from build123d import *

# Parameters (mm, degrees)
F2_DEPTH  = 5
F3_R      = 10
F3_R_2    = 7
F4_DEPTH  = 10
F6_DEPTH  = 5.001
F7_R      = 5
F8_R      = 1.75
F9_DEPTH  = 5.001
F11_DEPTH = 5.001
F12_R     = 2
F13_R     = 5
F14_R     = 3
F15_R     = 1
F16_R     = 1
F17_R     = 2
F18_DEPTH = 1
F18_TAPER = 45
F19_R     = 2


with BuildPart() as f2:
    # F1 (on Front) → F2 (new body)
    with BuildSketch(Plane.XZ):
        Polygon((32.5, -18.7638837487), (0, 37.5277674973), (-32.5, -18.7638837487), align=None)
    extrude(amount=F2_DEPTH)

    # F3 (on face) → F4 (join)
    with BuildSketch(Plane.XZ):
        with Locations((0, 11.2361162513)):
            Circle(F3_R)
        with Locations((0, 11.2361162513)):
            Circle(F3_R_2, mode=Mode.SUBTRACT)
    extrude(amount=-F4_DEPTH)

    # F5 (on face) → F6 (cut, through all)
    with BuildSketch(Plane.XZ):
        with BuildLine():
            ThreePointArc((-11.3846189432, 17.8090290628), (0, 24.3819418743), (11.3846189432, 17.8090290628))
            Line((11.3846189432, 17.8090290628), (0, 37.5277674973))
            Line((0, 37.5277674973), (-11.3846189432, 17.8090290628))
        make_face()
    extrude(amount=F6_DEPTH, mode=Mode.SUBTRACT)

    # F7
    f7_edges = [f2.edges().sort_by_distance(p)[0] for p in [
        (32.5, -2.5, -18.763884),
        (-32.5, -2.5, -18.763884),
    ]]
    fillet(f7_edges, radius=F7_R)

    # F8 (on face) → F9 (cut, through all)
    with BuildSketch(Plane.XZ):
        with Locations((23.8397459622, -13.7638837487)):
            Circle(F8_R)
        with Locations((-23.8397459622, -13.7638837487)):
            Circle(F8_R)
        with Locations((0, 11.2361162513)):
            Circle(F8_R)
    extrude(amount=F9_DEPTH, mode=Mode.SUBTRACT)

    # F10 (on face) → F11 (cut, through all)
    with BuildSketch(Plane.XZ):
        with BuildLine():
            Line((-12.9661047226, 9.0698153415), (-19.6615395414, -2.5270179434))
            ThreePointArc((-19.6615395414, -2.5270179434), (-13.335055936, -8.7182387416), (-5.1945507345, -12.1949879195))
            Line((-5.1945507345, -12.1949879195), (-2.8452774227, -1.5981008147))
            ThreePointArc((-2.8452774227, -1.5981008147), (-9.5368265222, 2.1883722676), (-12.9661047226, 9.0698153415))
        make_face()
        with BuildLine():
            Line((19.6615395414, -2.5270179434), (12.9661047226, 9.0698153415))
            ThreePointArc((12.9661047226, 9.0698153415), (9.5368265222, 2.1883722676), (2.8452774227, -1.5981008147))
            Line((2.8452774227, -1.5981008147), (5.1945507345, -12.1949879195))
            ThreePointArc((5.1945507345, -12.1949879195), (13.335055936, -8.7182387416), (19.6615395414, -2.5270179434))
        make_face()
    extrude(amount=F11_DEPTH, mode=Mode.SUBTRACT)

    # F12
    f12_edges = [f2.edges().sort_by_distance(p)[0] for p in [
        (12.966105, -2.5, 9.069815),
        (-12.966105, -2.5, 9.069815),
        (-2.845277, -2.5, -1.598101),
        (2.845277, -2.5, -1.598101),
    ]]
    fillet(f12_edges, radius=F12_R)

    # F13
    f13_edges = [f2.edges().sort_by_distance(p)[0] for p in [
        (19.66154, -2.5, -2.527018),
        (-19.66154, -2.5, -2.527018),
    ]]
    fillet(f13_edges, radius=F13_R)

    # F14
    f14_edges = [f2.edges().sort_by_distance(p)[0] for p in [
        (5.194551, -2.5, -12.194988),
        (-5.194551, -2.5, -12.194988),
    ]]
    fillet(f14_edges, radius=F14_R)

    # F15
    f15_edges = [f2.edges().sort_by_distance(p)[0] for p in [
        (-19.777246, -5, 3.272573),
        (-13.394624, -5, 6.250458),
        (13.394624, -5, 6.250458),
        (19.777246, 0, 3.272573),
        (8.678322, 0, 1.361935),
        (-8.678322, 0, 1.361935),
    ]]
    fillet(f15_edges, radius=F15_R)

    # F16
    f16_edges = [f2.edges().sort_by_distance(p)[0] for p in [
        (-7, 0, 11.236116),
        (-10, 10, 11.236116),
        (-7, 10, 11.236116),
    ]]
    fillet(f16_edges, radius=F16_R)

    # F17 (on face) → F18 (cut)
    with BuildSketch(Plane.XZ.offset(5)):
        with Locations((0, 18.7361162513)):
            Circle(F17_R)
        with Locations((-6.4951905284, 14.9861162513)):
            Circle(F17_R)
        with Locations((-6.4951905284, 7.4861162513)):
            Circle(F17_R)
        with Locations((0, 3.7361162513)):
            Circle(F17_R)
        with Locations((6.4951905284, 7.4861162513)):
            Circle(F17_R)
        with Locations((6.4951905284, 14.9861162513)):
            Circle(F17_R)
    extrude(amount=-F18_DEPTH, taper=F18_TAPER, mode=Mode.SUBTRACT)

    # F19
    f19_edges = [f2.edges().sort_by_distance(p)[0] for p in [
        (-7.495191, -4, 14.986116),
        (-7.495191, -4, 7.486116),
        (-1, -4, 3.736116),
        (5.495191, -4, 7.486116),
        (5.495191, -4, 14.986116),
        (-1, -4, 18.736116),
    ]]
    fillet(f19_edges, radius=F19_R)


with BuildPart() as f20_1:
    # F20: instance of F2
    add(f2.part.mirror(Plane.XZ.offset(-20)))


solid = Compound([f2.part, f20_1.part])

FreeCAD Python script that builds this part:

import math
import FreeCAD as App
import Part
import Sketcher
from FreeCAD import Vector
Q = App.Units.Quantity


def edges_at(feature, points):
    """Names of the edges that pass closest to the given points."""
    edges = feature.Shape.Edges
    near = lambda p: min(range(len(edges)), key=lambda i: edges[i].distToShape(Part.Vertex(*p))[0])
    return sorted({f"Edge{near(p) + 1}" for p in points})

doc = App.newDocument("Part")
body = doc.addObject("PartDesign::Body", "Body")

# Sketch on XZ plane
sketch1 = body.newObject("Sketcher::SketchObject", "Sketch")
sketch1.AttachmentSupport = (doc.getObject("XZ_Plane"), [""])
sketch1.MapMode = "FlatFace"
sketch1.addGeometry(Part.LineSegment(Vector(32.5, -18.763884, 0), Vector(0, 37.527767, 0)), False)
sketch1.addGeometry(Part.LineSegment(Vector(0, 37.527767, 0), Vector(-32.5, -18.763884, 0)), False)
sketch1.addGeometry(Part.LineSegment(Vector(-32.5, -18.763884, 0), Vector(32.5, -18.763884, 0)), False)
sketch1.addConstraint(Sketcher.Constraint("Coincident", 0, 2, 1, 1))
sketch1.addConstraint(Sketcher.Constraint("Coincident", 1, 2, 2, 1))
sketch1.addConstraint(Sketcher.Constraint("Coincident", 2, 2, 0, 1))
sketch1.addConstraint(Sketcher.Constraint("Horizontal", 2))
sketch1.addConstraint(Sketcher.Constraint("PointOnObject", 0, 2, -2))
sketch1.addConstraint(Sketcher.Constraint("Equal", 0, 1))
sketch1.addConstraint(Sketcher.Constraint("DistanceX", 2, 1, 2, 2, Q("65 mm")))
sketch1.addConstraint(Sketcher.Constraint("Angle", 0, Q("120 deg")))
sketch1.addConstraint(Sketcher.Constraint("DistanceY", -1, 1, 0, 2, Q("37.527767 mm")))
pad1 = body.newObject("PartDesign::Pad", "Pad")
pad1.Profile = sketch1
pad1.Length = 5

# Sketch on XZ plane
sketch2 = body.newObject("Sketcher::SketchObject", "Sketch001")
sketch2.AttachmentSupport = (doc.getObject("XZ_Plane"), [""])
sketch2.MapMode = "FlatFace"
sketch2.addGeometry(Part.Circle(Vector(0, 11.236116, 0), Vector(0, 0, 1), 10), False)
sketch2.addGeometry(Part.Circle(Vector(0, 11.236116, 0), Vector(0, 0, 1), 7), False)
sketch2.addConstraint(Sketcher.Constraint("Coincident", 1, 3, 0, 3))
sketch2.addConstraint(Sketcher.Constraint("PointOnObject", 0, 3, -2))
sketch2.addConstraint(Sketcher.Constraint("Diameter", 0, Q("20 mm")))
sketch2.addConstraint(Sketcher.Constraint("Diameter", 1, Q("14 mm")))
sketch2.addConstraint(Sketcher.Constraint("DistanceY", -1, 1, 0, 3, Q("11.236116 mm")))
pad2 = body.newObject("PartDesign::Pad", "Pad001")
pad2.Profile = sketch2
pad2.Length = 10
pad2.Reversed = True

# Sketch on XZ plane
sketch3 = body.newObject("Sketcher::SketchObject", "Sketch002")
sketch3.AttachmentSupport = (doc.getObject("XZ_Plane"), [""])
sketch3.MapMode = "FlatFace"
sketch3.addGeometry(Part.ArcOfCircle(Part.Circle(Vector(0, 11.236116, 0), Vector(0, 0, 1), 13.145826), math.radians(30), math.radians(150)), False)
sketch3.addGeometry(Part.LineSegment(Vector(11.384619, 17.809029, 0), Vector(0, 37.527767, 0)), False)
sketch3.addGeometry(Part.LineSegment(Vector(0, 37.527767, 0), Vector(-11.384619, 17.809029, 0)), False)
sketch3.addConstraint(Sketcher.Constraint("Tangent", 0, 1, 1, 1))
sketch3.addConstraint(Sketcher.Constraint("Coincident", 1, 2, 2, 1))
sketch3.addConstraint(Sketcher.Constraint("Tangent", 2, 2, 0, 2))
sketch3.addConstraint(Sketcher.Constraint("Symmetric", 0, 1, 2, 2, -2))
sketch3.addConstraint(Sketcher.Constraint("Angle", 1, Q("120 deg")))
sketch3.addConstraint(Sketcher.Constraint("Radius", 0, Q("13.145826 mm")))
sketch3.addConstraint(Sketcher.Constraint("DistanceY", -1, 1, 0, 1, Q("17.809029 mm")))
pocket1 = body.newObject("PartDesign::Pocket", "Pocket")
pocket1.Profile = sketch3
pocket1.Type = "ThroughAll"
pocket1.Reversed = True
doc.recompute()

fillet = body.newObject("PartDesign::Fillet", "Fillet")
fillet.Base = (pocket1, edges_at(pocket1, [(32.5, -2.5, -18.764), (-32.5, -2.5, -18.764)]))
fillet.Radius = 5

# Sketch on XZ plane
sketch4 = body.newObject("Sketcher::SketchObject", "Sketch003")
sketch4.AttachmentSupport = (doc.getObject("XZ_Plane"), [""])
sketch4.MapMode = "FlatFace"
sketch4.addGeometry(Part.Circle(Vector(23.839746, -13.763884, 0), Vector(0, 0, 1), 1.75), False)
sketch4.addGeometry(Part.Circle(Vector(-23.839746, -13.763884, 0), Vector(0, 0, 1), 1.75), False)
sketch4.addGeometry(Part.Circle(Vector(0, 11.236116, 0), Vector(0, 0, 1), 1.75), False)
sketch4.addConstraint(Sketcher.Constraint("Equal", 0, 1))
sketch4.addConstraint(Sketcher.Constraint("Equal", 1, 2))
sketch4.addConstraint(Sketcher.Constraint("Symmetric", 0, 3, 1, 3, -2))
sketch4.addConstraint(Sketcher.Constraint("PointOnObject", 2, 3, -2))
sketch4.addConstraint(Sketcher.Constraint("Diameter", 0, Q("3.5 mm")))
sketch4.addConstraint(Sketcher.Constraint("DistanceY", 0, 3, 2, 3, Q("25 mm")))
sketch4.addConstraint(Sketcher.Constraint("DistanceX", 1, 3, 0, 3, Q("47.679492 mm")))
sketch4.addConstraint(Sketcher.Constraint("DistanceY", 0, 3, -1, 1, Q("13.763884 mm")))
pocket2 = body.newObject("PartDesign::Pocket", "Pocket001")
pocket2.Profile = sketch4
pocket2.Type = "ThroughAll"
pocket2.Reversed = True

# Sketch on XZ plane
sketch5 = body.newObject("Sketcher::SketchObject", "Sketch004")
sketch5.AttachmentSupport = (doc.getObject("XZ_Plane"), [""])
sketch5.MapMode = "FlatFace"
sketch5.addGeometry(Part.LineSegment(Vector(-12.966105, 9.069815, 0), Vector(-19.66154, -2.527018, 0)), False)
sketch5.addGeometry(Part.ArcOfCircle(Part.Circle(Vector(0, 11.236116, 0), Vector(0, 0, 1), 24), math.radians(-145.007869), math.radians(-102.5)), False)
sketch5.addGeometry(Part.LineSegment(Vector(-5.194551, -12.194988, 0), Vector(-2.845277, -1.598101, 0)), False)
sketch5.addGeometry(Part.ArcOfCircle(Part.Circle(Vector(0, 11.236116, 0), Vector(0, 0, 1), 13.145826), math.radians(-170.514963), math.radians(-102.5)), False)
sketch5.addGeometry(Part.LineSegment(Vector(19.66154, -2.527018, 0), Vector(12.966105, 9.069815, 0)), False)
sketch5.addGeometry(Part.ArcOfCircle(Part.Circle(Vector(0, 11.236116, 0), Vector(0, 0, 1), 13.145826), math.radians(-77.5), math.radians(-9.485037)), False)
sketch5.addGeometry(Part.LineSegment(Vector(2.845277, -1.598101, 0), Vector(5.194551, -12.194988, 0)), False)
sketch5.addGeometry(Part.ArcOfCircle(Part.Circle(Vector(0, 11.236116, 0), Vector(0, 0, 1), 24), math.radians(-77.5), math.radians(-34.992131)), False)
sketch5.addConstraint(Sketcher.Constraint("Coincident", 0, 2, 1, 1))
sketch5.addConstraint(Sketcher.Constraint("Coincident", 1, 2, 2, 1))
sketch5.addConstraint(Sketcher.Constraint("Coincident", 2, 2, 3, 2))
sketch5.addConstraint(Sketcher.Constraint("Coincident", 3, 1, 0, 1))
sketch5.addConstraint(Sketcher.Constraint("Coincident", 4, 2, 5, 2))
sketch5.addConstraint(Sketcher.Constraint("Coincident", 5, 1, 6, 1))
sketch5.addConstraint(Sketcher.Constraint("Coincident", 6, 2, 7, 1))
sketch5.addConstraint(Sketcher.Constraint("Coincident", 7, 2, 4, 1))
sketch5.addConstraint(Sketcher.Constraint("Coincident", 3, 3, 1, 3))
sketch5.addConstraint(Sketcher.Constraint("Coincident", 5, 3, 1, 3))
sketch5.addConstraint(Sketcher.Constraint("Coincident", 7, 3, 1, 3))
sketch5.addConstraint(Sketcher.Constraint("Equal", 3, 5))
sketch5.addConstraint(Sketcher.Constraint("Equal", 1, 7))
sketch5.addConstraint(Sketcher.Constraint("Symmetric", 3, 1, 4, 2, -2))
sketch5.addConstraint(Sketcher.Constraint("Horizontal", 2, 2, 5, 1))
sketch5.addConstraint(Sketcher.Constraint("Horizontal", 1, 2, 6, 2))
sketch5.addConstraint(Sketcher.Constraint("Horizontal", 0, 2, 7, 2))
sketch5.addConstraint(Sketcher.Constraint("Radius", 1, Q("24 mm")))
sketch5.addConstraint(Sketcher.Constraint("Angle", 0, Q("-120 deg")))
sketch5.addConstraint(Sketcher.Constraint("Angle", 2, Q("77.5 deg")))
sketch5.addConstraint(Sketcher.Constraint("Radius", 3, Q("13.145826 mm")))
sketch5.addConstraint(Sketcher.Constraint("DistanceY", 2, 2, -1, 1, Q("1.598101 mm")))
sketch5.addConstraint(Sketcher.Constraint("DistanceY", 3, 1, 1, 3, Q("2.166301 mm")))
sketch5.addConstraint(Sketcher.Constraint("DistanceX", 1, 2, 6, 2, Q("10.389101 mm")))
pocket3 = body.newObject("PartDesign::Pocket", "Pocket002")
pocket3.Profile = sketch5
pocket3.Type = "ThroughAll"
pocket3.Reversed = True
doc.recompute()

fillet2 = body.newObject("PartDesign::Fillet", "Fillet001")
fillet2.Base = (pocket3, edges_at(pocket3, [
    (12.966, -2.5, 9.07),
    (-12.966, -2.5, 9.07),
    (-2.845, -2.5, -1.598),
    (2.845, -2.5, -1.598),
]))
fillet2.Radius = 2
doc.recompute()

fillet3 = body.newObject("PartDesign::Fillet", "Fillet002")
fillet3.Base = (fillet2, edges_at(fillet2, [(19.662, -2.5, -2.527), (-19.662, -2.5, -2.527)]))
fillet3.Radius = 5
doc.recompute()

fillet4 = body.newObject("PartDesign::Fillet", "Fillet003")
fillet4.Base = (fillet3, edges_at(fillet3, [(5.195, -2.5, -12.195), (-5.195, -2.5, -12.195)]))
fillet4.Radius = 3
doc.recompute()

fillet5 = body.newObject("PartDesign::Fillet", "Fillet004")
fillet5.Base = (fillet4, edges_at(fillet4, [
    (-19.777, -5, 3.273),
    (-13.395, -5, 6.25),
    (13.395, -5, 6.25),
    (19.777, 0, 3.273),
    (8.678, 0, 1.362),
    (-8.678, 0, 1.362),
]))
fillet5.Radius = 1
doc.recompute()

fillet6 = body.newObject("PartDesign::Fillet", "Fillet005")
fillet6.Base = (fillet5, edges_at(fillet5, [(-7, 0, 11.236), (-10, 10, 11.236), (-7, 10, 11.236)]))
fillet6.Radius = 1

# Sketch on XZ plane
sketch6 = body.newObject("Sketcher::SketchObject", "Sketch005")
sketch6.AttachmentSupport = (doc.getObject("XZ_Plane"), [""])
sketch6.MapMode = "FlatFace"
sketch6.AttachmentOffset = App.Placement(Vector(0, 0, 5), App.Rotation())
sketch6.addGeometry(Part.Circle(Vector(0, 18.736116, 0), Vector(0, 0, 1), 2), False)
sketch6.addGeometry(Part.Circle(Vector(-6.495191, 14.986116, 0), Vector(0, 0, 1), 2), False)
sketch6.addGeometry(Part.Circle(Vector(-6.495191, 7.486116, 0), Vector(0, 0, 1), 2), False)
sketch6.addGeometry(Part.Circle(Vector(0, 3.736116, 0), Vector(0, 0, 1), 2), False)
sketch6.addGeometry(Part.Circle(Vector(6.495191, 7.486116, 0), Vector(0, 0, 1), 2), False)
sketch6.addGeometry(Part.Circle(Vector(6.495191, 14.986116, 0), Vector(0, 0, 1), 2), False)
sketch6.addConstraint(Sketcher.Constraint("Equal", 0, 1))
sketch6.addConstraint(Sketcher.Constraint("Equal", 1, 2))
sketch6.addConstraint(Sketcher.Constraint("Equal", 2, 3))
sketch6.addConstraint(Sketcher.Constraint("Equal", 3, 4))
sketch6.addConstraint(Sketcher.Constraint("Equal", 4, 5))
sketch6.addConstraint(Sketcher.Constraint("Symmetric", 2, 3, 4, 3, -2))
sketch6.addConstraint(Sketcher.Constraint("Symmetric", 1, 3, 5, 3, -2))
sketch6.addConstraint(Sketcher.Constraint("PointOnObject", 0, 3, -2))
sketch6.addConstraint(Sketcher.Constraint("PointOnObject", 3, 3, -2))
sketch6.addConstraint(Sketcher.Constraint("Vertical", 1, 3, 2, 3))
sketch6.addConstraint(Sketcher.Constraint("Diameter", 0, Q("4 mm")))
sketch6.addConstraint(Sketcher.Constraint("DistanceY", 3, 3, 0, 3, Q("15 mm")))
sketch6.addConstraint(Sketcher.Constraint("DistanceY", 2, 3, 1, 3, Q("7.5 mm")))
sketch6.addConstraint(Sketcher.Constraint("DistanceY", 1, 3, 0, 3, Q("3.75 mm")))
sketch6.addConstraint(Sketcher.Constraint("DistanceX", 1, 3, -1, 1, Q("6.495191 mm")))
sketch6.addConstraint(Sketcher.Constraint("DistanceY", -1, 1, 0, 3, Q("18.736116 mm")))
pocket4 = body.newObject("PartDesign::Pocket", "Pocket003")
pocket4.Profile = sketch6
pocket4.Length = 1
pocket4.TaperAngle = -45
doc.recompute()

fillet7 = body.newObject("PartDesign::Fillet", "Fillet006")
fillet7.Base = (pocket4, edges_at(pocket4, [
    (-7.495, -4, 14.986),
    (-7.495, -4, 7.486),
    (-1, -4, 3.736),
    (5.495, -4, 7.486),
    (5.495, -4, 14.986),
    (-1, -4, 18.736),
]))
fillet7.Radius = 2
body2 = doc.addObject("PartDesign::Body", "Body001")
doc.recompute()

mirroring = doc.addObject("Part::Mirroring", "Mirroring")
mirroring.Source = body
mirroring.Base = Vector(0, 20, 0)
mirroring.Normal = Vector(0, -1, 0)
body2.BaseFeature = mirroring
doc.recompute()
mirroring.Visibility = False

doc.recompute()
